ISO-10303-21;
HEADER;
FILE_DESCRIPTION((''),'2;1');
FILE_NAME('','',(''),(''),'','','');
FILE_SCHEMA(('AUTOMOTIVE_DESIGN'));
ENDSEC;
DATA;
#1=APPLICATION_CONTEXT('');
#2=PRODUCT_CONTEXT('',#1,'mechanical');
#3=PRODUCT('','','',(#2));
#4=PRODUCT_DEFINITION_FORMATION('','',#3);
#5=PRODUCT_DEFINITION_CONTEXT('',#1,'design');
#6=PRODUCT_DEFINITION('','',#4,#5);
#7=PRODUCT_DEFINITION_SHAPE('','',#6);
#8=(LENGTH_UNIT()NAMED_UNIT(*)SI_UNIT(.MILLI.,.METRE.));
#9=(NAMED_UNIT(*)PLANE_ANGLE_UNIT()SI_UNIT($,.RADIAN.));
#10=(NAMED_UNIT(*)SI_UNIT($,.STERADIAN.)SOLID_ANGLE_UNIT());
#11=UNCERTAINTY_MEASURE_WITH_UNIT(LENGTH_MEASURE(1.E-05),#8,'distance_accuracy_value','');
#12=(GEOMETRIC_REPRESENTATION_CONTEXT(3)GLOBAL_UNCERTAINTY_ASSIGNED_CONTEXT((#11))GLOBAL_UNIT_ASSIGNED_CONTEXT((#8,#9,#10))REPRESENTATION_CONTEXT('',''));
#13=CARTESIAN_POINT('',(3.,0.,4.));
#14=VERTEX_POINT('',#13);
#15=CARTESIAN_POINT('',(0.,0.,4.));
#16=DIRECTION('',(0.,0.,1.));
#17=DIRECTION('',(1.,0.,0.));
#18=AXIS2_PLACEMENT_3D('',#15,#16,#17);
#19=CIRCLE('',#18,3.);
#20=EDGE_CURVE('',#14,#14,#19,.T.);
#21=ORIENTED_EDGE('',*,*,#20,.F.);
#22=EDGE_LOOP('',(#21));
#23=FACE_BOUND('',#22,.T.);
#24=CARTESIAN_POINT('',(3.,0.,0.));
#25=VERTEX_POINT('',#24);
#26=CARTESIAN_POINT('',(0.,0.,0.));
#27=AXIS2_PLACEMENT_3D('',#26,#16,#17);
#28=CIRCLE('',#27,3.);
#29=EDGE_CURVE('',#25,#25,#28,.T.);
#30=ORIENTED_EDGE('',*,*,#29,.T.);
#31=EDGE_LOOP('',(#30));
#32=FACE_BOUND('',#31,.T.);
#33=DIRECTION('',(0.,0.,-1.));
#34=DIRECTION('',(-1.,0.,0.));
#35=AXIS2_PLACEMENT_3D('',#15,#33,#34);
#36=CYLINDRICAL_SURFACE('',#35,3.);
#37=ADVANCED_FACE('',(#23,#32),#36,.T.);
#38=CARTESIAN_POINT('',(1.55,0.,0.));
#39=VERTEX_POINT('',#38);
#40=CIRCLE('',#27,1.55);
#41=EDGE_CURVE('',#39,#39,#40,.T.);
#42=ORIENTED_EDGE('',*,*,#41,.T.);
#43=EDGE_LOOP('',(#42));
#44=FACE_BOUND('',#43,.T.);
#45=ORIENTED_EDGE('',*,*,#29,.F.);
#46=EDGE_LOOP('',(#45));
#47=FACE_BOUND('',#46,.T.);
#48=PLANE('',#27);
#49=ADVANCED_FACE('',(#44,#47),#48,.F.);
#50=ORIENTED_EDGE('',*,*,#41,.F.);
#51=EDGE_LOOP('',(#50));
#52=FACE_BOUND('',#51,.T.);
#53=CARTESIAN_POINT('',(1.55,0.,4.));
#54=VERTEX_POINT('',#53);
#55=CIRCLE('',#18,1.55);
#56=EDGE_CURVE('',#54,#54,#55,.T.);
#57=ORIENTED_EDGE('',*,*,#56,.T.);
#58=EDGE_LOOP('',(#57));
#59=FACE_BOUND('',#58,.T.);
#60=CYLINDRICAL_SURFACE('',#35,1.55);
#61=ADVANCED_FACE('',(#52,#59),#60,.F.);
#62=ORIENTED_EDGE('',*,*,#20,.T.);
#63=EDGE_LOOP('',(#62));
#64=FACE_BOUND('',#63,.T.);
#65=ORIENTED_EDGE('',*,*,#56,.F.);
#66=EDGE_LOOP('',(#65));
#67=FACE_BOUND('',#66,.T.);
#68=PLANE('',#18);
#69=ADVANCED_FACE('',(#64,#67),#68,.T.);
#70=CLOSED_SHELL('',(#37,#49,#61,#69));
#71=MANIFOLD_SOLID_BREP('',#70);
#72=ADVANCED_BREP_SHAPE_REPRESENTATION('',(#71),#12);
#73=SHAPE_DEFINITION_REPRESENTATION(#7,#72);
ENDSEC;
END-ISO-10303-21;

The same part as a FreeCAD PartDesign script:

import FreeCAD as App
import Part
import Sketcher
from FreeCAD import Vector
Q = App.Units.Quantity

doc = App.newDocument("Part")
body = doc.addObject("PartDesign::Body", "Body")

# Sketch on XY plane
sketch1 = body.newObject("Sketcher::SketchObject", "Sketch")
sketch1.AttachmentSupport = (doc.getObject("XY_Plane"), [""])
sketch1.MapMode = "FlatFace"
sketch1.addGeometry(Part.Circle(Vector(0, 0, 0), Vector(0, 0, 1), 3), False)
sketch1.addGeometry(Part.Circle(Vector(0, 0, 0), Vector(0, 0, 1), 1.6), False)
sketch1.addConstraint(Sketcher.Constraint("Coincident", 0, 3, -1, 1))
sketch1.addConstraint(Sketcher.Constraint("Coincident", 1, 3, -1, 1))
sketch1.addConstraint(Sketcher.Constraint("Diameter", 0, Q("6 mm")))
sketch1.addConstraint(Sketcher.Constraint("Diameter", 1, Q("3.1 mm")))
pad1 = body.newObject("PartDesign::Pad", "Pad")
pad1.Profile = sketch1
pad1.Length = 4

doc.recompute()
